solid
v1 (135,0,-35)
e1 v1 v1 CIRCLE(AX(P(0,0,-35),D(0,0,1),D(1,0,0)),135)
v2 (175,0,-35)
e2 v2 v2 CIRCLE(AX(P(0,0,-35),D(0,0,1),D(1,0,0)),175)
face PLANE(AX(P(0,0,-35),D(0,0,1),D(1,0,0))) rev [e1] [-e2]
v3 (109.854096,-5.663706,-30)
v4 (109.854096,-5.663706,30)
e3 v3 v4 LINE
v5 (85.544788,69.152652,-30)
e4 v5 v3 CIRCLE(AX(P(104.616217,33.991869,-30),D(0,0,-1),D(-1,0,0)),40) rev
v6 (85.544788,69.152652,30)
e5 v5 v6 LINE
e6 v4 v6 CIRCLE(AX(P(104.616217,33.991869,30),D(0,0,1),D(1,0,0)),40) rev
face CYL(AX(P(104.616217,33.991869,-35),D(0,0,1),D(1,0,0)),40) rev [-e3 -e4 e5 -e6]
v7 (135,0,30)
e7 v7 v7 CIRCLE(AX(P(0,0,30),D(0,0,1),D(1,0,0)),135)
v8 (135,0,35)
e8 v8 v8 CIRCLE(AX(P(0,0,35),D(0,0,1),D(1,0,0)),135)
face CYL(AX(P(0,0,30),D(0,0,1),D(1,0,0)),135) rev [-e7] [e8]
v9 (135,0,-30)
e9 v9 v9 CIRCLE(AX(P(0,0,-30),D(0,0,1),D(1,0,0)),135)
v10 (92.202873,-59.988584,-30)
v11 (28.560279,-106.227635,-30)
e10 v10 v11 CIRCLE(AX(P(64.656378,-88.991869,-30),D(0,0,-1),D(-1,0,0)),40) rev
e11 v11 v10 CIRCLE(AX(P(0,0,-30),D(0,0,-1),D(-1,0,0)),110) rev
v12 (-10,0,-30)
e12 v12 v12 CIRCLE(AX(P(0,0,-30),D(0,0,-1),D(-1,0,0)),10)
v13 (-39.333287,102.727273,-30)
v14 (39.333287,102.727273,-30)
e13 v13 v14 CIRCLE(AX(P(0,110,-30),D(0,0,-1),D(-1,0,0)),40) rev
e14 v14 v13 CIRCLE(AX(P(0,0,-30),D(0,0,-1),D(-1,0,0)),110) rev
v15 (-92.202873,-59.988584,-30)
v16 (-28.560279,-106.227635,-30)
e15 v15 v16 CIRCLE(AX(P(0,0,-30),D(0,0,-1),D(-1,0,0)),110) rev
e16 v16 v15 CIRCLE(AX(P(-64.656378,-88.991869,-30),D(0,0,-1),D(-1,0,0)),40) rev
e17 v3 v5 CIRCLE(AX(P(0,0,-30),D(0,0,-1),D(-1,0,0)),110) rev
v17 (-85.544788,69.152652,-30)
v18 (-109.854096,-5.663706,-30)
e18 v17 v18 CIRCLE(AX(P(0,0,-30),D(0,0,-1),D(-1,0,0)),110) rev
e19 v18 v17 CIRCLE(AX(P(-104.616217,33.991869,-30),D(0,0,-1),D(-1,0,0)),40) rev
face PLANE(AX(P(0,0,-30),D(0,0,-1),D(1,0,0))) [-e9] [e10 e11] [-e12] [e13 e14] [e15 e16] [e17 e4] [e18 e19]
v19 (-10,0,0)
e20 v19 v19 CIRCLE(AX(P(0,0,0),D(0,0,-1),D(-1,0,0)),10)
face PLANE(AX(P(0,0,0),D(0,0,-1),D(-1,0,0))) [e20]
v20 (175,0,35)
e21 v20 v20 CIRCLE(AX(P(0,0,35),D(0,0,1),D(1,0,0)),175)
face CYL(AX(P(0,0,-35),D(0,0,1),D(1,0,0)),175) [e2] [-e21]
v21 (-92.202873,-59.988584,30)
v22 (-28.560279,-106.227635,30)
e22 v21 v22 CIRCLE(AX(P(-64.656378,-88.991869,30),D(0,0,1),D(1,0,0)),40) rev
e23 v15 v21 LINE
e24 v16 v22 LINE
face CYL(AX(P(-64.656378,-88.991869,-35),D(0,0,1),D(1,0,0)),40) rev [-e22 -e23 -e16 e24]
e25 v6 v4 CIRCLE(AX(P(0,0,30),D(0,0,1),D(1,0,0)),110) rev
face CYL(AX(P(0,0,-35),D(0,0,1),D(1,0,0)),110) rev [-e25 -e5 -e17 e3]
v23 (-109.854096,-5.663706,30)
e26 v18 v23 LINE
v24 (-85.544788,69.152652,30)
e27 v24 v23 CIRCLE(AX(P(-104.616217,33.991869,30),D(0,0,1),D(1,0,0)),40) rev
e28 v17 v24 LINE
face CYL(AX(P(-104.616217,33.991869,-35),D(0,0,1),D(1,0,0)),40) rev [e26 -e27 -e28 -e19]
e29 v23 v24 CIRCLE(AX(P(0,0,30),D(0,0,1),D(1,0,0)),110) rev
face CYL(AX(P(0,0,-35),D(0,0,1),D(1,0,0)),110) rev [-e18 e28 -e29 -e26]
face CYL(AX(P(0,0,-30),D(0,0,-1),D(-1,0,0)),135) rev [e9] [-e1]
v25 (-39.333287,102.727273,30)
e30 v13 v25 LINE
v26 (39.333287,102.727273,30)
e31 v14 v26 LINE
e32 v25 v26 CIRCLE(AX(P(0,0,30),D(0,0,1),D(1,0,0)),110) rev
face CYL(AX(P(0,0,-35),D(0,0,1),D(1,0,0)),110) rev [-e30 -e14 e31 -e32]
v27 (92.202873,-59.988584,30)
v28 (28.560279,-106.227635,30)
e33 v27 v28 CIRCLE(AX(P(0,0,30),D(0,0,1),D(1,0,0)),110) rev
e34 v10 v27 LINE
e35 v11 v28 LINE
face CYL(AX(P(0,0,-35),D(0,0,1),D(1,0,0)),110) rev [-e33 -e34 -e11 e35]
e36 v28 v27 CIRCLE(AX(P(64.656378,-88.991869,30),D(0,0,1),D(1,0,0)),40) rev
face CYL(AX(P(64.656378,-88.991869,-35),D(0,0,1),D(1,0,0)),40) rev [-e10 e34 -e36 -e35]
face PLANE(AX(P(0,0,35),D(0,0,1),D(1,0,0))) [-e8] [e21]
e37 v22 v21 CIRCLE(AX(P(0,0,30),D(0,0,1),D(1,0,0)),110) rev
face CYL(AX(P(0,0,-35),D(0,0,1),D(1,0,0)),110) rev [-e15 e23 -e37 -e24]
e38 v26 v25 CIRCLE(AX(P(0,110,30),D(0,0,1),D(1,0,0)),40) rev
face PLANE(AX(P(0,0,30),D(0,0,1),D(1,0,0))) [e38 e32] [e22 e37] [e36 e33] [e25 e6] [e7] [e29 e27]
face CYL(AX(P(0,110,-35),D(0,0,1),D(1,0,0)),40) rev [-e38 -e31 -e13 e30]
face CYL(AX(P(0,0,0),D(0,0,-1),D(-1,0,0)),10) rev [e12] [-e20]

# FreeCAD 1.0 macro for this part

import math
import FreeCAD as App
import Part
import Sketcher
from FreeCAD import Vector

doc = App.newDocument("Part")
params = doc.addObject("Spreadsheet::Sheet", "Params")
for row, (alias, value) in enumerate([
    ("sketch1_diameter", "350 mm"),
    ("pad1_length", "35 mm"),
    ("pad1_length2", "35 mm"),
    ("sketch2_radius", "110 mm"),
    ("sketch2_radius2", "40 mm"),
    ("sketch3_diameter", "270 mm"),
    ("pocket2_length", "5 mm"),
    ("sketch4_diameter", "20 mm"),
    ("pocket3_length", "30 mm"),
], start=1):
    params.set(f"A{row}", alias)
    params.set(f"B{row}", "=" + value)
    params.setAlias(f"B{row}", alias)

body = doc.addObject("PartDesign::Body", "Body")

# Sketch on XY plane
sketch1 = body.newObject("Sketcher::SketchObject", "Sketch")
sketch1.AttachmentSupport = (doc.getObject("XY_Plane"), [""])
sketch1.MapMode = "FlatFace"
sketch1.addGeometry(Part.Circle(Vector(0, 0, 0), Vector(0, 0, 1), 175), False)
sketch1.addConstraint(Sketcher.Constraint("Coincident", 0, 3, -1, 1))
sketch1.addConstraint(Sketcher.Constraint("Diameter", 0, 350.0))
sketch1.setExpression("Constraints[1]", "Params.sketch1_diameter")
pad1 = body.newObject("PartDesign::Pad", "Pad")
pad1.Profile = sketch1
pad1.Type = "TwoLengths"
pad1.setExpression("Length", "Params.pad1_length")
pad1.setExpression("Length2", "Params.pad1_length2")

# Sketch on XY plane
sketch2 = body.newObject("Sketcher::SketchObject", "Sketch001")
sketch2.AttachmentSupport = (doc.getObject("XY_Plane"), [""])
sketch2.MapMode = "FlatFace"
sketch2.AttachmentOffset = App.Placement(Vector(0, 0, 35), App.Rotation())
sketch2.addGeometry(Part.ArcOfCircle(Part.Circle(Vector(0, 0, 0), Vector(0, 0, 1), 110), math.radians(69), math.radians(111)), False)
sketch2.addGeometry(Part.ArcOfCircle(Part.Circle(Vector(0, 110, 0), Vector(0, 0, 1), 40), math.radians(-170), math.radians(-10)), False)
sketch2.addGeometry(Part.ArcOfCircle(Part.Circle(Vector(0, 0, 0), Vector(0, 0, 1), 110), math.radians(141), math.radians(183)), False)
sketch2.addGeometry(Part.ArcOfCircle(Part.Circle(Vector(-105, 34, 0), Vector(0, 0, 1), 40), math.radians(-98), math.radians(62)), False)
sketch2.addGeometry(Part.ArcOfCircle(Part.Circle(Vector(0, 0, 0), Vector(0, 0, 1), 110), math.radians(-147), math.radians(-105)), False)
sketch2.addGeometry(Part.ArcOfCircle(Part.Circle(Vector(-65, -89, 0), Vector(0, 0, 1), 40), math.radians(-26), math.radians(134)), False)
sketch2.addGeometry(Part.ArcOfCircle(Part.Circle(Vector(0, 0, 0), Vector(0, 0, 1), 110), math.radians(-75), math.radians(-33)), False)
sketch2.addGeometry(Part.ArcOfCircle(Part.Circle(Vector(65, -89, 0), Vector(0, 0, 1), 40), math.radians(46), math.radians(206)), False)
sketch2.addGeometry(Part.ArcOfCircle(Part.Circle(Vector(0, 0, 0), Vector(0, 0, 1), 110), math.radians(-3), math.radians(39)), False)
sketch2.addGeometry(Part.ArcOfCircle(Part.Circle(Vector(105, 34, 0), Vector(0, 0, 1), 40), math.radians(118), math.radians(278)), False)
sketch2.addConstraint(Sketcher.Constraint("Coincident", 0, 1, 1, 2))
sketch2.addConstraint(Sketcher.Constraint("Coincident", 1, 1, 0, 2))
sketch2.addConstraint(Sketcher.Constraint("Coincident", 2, 1, 3, 2))
sketch2.addConstraint(Sketcher.Constraint("Coincident", 3, 1, 2, 2))
sketch2.addConstraint(Sketcher.Constraint("Coincident", 4, 1, 5, 2))
sketch2.addConstraint(Sketcher.Constraint("Coincident", 5, 1, 4, 2))
sketch2.addConstraint(Sketcher.Constraint("Coincident", 6, 1, 7, 2))
sketch2.addConstraint(Sketcher.Constraint("Coincident", 7, 1, 6, 2))
sketch2.addConstraint(Sketcher.Constraint("Coincident", 8, 1, 9, 2))
sketch2.addConstraint(Sketcher.Constraint("Coincident", 9, 1, 8, 2))
sketch2.addConstraint(Sketcher.Constraint("Coincident", 0, 3, -1, 1))
sketch2.addConstraint(Sketcher.Constraint("Coincident", 2, 3, -1, 1))
sketch2.addConstraint(Sketcher.Constraint("Coincident", 4, 3, -1, 1))
sketch2.addConstraint(Sketcher.Constraint("Coincident", 6, 3, -1, 1))
sketch2.addConstraint(Sketcher.Constraint("Coincident", 8, 3, -1, 1))
sketch2.addConstraint(Sketcher.Constraint("Equal", 0, 2))
sketch2.addConstraint(Sketcher.Constraint("Equal", 1, 3))
sketch2.addConstraint(Sketcher.Constraint("Equal", 2, 4))
sketch2.addConstraint(Sketcher.Constraint("Equal", 3, 5))
sketch2.addConstraint(Sketcher.Constraint("Equal", 4, 6))
sketch2.addConstraint(Sketcher.Constraint("Equal", 5, 7))
sketch2.addConstraint(Sketcher.Constraint("Equal", 6, 8))
sketch2.addConstraint(Sketcher.Constraint("Equal", 7, 9))
sketch2.addConstraint(Sketcher.Constraint("Symmetric", 5, 3, 7, 3, -2))
sketch2.addConstraint(Sketcher.Constraint("Symmetric", 3, 3, 9, 3, -2))
sketch2.addConstraint(Sketcher.Constraint("PointOnObject", 1, 3, -2))
sketch2.addConstraint(Sketcher.Constraint("Radius", 0, 110.0))
sketch2.addConstraint(Sketcher.Constraint("Radius", 1, 40.0))
sketch2.addConstraint(Sketcher.Constraint("DistanceY", -1, 1, 1, 3, 110.0))
sketch2.addConstraint(Sketcher.Constraint("DistanceX", 2, 1, 1, 1, 46.211501))
sketch2.addConstraint(Sketcher.Constraint("DistanceX", 5, 3, 5, 1, 36.096099))
sketch2.addConstraint(Sketcher.Constraint("DistanceY", -1, 1, 3, 3, 33.991869))
sketch2.addConstraint(Sketcher.Constraint("DistanceY", 5, 3, -1, 1, 88.991869))
sketch2.setExpression("Constraints[26]", "Params.sketch2_radius")
sketch2.setExpression("Constraints[27]", "Params.sketch2_radius2")
pocket1 = body.newObject("PartDesign::Pocket", "Pocket")
pocket1.Profile = sketch2
pocket1.Type = "ThroughAll"

# Sketch on XY plane
sketch3 = body.newObject("Sketcher::SketchObject", "Sketch002")
sketch3.AttachmentSupport = (doc.getObject("XY_Plane"), [""])
sketch3.MapMode = "FlatFace"
sketch3.AttachmentOffset = App.Placement(Vector(0, 0, 35), App.Rotation())
sketch3.addGeometry(Part.Circle(Vector(0, 0, 0), Vector(0, 0, 1), 135), False)
sketch3.addConstraint(Sketcher.Constraint("Coincident", 0, 3, -1, 1))
sketch3.addConstraint(Sketcher.Constraint("Diameter", 0, 270.0))
sketch3.setExpression("Constraints[1]", "Params.sketch3_diameter")
pocket2 = body.newObject("PartDesign::Pocket", "Pocket001")
pocket2.Profile = sketch3
pocket2.setExpression("Length", "Params.pocket2_length")
doc.recompute()

mirrored = body.newObject("PartDesign::Mirrored", "Mirrored")
mirrored.Originals = [pocket2]
mirrored.MirrorPlane = (doc.getObject("XY_Plane"), [""])
body.Tip = mirrored

# Sketch on XY plane
sketch4 = body.newObject("Sketcher::SketchObject", "Sketch003")
sketch4.AttachmentSupport = (doc.getObject("XY_Plane"), [""])
sketch4.MapMode = "FlatFace"
sketch4.AttachmentOffset = App.Placement(Vector(0, 0, -30), App.Rotation())
sketch4.addGeometry(Part.Circle(Vector(0, 0, 0), Vector(0, 0, 1), 10), False)
sketch4.addConstraint(Sketcher.Constraint("Coincident", 0, 3, -1, 1))
sketch4.addConstraint(Sketcher.Constraint("Diameter", 0, 20.0))
sketch4.setExpression("Constraints[1]", "Params.sketch4_diameter")
pocket3 = body.newObject("PartDesign::Pocket", "Pocket002")
pocket3.Profile = sketch4
pocket3.setExpression("Length", "Params.pocket3_length")
pocket3.Reversed = True

doc.recompute()
